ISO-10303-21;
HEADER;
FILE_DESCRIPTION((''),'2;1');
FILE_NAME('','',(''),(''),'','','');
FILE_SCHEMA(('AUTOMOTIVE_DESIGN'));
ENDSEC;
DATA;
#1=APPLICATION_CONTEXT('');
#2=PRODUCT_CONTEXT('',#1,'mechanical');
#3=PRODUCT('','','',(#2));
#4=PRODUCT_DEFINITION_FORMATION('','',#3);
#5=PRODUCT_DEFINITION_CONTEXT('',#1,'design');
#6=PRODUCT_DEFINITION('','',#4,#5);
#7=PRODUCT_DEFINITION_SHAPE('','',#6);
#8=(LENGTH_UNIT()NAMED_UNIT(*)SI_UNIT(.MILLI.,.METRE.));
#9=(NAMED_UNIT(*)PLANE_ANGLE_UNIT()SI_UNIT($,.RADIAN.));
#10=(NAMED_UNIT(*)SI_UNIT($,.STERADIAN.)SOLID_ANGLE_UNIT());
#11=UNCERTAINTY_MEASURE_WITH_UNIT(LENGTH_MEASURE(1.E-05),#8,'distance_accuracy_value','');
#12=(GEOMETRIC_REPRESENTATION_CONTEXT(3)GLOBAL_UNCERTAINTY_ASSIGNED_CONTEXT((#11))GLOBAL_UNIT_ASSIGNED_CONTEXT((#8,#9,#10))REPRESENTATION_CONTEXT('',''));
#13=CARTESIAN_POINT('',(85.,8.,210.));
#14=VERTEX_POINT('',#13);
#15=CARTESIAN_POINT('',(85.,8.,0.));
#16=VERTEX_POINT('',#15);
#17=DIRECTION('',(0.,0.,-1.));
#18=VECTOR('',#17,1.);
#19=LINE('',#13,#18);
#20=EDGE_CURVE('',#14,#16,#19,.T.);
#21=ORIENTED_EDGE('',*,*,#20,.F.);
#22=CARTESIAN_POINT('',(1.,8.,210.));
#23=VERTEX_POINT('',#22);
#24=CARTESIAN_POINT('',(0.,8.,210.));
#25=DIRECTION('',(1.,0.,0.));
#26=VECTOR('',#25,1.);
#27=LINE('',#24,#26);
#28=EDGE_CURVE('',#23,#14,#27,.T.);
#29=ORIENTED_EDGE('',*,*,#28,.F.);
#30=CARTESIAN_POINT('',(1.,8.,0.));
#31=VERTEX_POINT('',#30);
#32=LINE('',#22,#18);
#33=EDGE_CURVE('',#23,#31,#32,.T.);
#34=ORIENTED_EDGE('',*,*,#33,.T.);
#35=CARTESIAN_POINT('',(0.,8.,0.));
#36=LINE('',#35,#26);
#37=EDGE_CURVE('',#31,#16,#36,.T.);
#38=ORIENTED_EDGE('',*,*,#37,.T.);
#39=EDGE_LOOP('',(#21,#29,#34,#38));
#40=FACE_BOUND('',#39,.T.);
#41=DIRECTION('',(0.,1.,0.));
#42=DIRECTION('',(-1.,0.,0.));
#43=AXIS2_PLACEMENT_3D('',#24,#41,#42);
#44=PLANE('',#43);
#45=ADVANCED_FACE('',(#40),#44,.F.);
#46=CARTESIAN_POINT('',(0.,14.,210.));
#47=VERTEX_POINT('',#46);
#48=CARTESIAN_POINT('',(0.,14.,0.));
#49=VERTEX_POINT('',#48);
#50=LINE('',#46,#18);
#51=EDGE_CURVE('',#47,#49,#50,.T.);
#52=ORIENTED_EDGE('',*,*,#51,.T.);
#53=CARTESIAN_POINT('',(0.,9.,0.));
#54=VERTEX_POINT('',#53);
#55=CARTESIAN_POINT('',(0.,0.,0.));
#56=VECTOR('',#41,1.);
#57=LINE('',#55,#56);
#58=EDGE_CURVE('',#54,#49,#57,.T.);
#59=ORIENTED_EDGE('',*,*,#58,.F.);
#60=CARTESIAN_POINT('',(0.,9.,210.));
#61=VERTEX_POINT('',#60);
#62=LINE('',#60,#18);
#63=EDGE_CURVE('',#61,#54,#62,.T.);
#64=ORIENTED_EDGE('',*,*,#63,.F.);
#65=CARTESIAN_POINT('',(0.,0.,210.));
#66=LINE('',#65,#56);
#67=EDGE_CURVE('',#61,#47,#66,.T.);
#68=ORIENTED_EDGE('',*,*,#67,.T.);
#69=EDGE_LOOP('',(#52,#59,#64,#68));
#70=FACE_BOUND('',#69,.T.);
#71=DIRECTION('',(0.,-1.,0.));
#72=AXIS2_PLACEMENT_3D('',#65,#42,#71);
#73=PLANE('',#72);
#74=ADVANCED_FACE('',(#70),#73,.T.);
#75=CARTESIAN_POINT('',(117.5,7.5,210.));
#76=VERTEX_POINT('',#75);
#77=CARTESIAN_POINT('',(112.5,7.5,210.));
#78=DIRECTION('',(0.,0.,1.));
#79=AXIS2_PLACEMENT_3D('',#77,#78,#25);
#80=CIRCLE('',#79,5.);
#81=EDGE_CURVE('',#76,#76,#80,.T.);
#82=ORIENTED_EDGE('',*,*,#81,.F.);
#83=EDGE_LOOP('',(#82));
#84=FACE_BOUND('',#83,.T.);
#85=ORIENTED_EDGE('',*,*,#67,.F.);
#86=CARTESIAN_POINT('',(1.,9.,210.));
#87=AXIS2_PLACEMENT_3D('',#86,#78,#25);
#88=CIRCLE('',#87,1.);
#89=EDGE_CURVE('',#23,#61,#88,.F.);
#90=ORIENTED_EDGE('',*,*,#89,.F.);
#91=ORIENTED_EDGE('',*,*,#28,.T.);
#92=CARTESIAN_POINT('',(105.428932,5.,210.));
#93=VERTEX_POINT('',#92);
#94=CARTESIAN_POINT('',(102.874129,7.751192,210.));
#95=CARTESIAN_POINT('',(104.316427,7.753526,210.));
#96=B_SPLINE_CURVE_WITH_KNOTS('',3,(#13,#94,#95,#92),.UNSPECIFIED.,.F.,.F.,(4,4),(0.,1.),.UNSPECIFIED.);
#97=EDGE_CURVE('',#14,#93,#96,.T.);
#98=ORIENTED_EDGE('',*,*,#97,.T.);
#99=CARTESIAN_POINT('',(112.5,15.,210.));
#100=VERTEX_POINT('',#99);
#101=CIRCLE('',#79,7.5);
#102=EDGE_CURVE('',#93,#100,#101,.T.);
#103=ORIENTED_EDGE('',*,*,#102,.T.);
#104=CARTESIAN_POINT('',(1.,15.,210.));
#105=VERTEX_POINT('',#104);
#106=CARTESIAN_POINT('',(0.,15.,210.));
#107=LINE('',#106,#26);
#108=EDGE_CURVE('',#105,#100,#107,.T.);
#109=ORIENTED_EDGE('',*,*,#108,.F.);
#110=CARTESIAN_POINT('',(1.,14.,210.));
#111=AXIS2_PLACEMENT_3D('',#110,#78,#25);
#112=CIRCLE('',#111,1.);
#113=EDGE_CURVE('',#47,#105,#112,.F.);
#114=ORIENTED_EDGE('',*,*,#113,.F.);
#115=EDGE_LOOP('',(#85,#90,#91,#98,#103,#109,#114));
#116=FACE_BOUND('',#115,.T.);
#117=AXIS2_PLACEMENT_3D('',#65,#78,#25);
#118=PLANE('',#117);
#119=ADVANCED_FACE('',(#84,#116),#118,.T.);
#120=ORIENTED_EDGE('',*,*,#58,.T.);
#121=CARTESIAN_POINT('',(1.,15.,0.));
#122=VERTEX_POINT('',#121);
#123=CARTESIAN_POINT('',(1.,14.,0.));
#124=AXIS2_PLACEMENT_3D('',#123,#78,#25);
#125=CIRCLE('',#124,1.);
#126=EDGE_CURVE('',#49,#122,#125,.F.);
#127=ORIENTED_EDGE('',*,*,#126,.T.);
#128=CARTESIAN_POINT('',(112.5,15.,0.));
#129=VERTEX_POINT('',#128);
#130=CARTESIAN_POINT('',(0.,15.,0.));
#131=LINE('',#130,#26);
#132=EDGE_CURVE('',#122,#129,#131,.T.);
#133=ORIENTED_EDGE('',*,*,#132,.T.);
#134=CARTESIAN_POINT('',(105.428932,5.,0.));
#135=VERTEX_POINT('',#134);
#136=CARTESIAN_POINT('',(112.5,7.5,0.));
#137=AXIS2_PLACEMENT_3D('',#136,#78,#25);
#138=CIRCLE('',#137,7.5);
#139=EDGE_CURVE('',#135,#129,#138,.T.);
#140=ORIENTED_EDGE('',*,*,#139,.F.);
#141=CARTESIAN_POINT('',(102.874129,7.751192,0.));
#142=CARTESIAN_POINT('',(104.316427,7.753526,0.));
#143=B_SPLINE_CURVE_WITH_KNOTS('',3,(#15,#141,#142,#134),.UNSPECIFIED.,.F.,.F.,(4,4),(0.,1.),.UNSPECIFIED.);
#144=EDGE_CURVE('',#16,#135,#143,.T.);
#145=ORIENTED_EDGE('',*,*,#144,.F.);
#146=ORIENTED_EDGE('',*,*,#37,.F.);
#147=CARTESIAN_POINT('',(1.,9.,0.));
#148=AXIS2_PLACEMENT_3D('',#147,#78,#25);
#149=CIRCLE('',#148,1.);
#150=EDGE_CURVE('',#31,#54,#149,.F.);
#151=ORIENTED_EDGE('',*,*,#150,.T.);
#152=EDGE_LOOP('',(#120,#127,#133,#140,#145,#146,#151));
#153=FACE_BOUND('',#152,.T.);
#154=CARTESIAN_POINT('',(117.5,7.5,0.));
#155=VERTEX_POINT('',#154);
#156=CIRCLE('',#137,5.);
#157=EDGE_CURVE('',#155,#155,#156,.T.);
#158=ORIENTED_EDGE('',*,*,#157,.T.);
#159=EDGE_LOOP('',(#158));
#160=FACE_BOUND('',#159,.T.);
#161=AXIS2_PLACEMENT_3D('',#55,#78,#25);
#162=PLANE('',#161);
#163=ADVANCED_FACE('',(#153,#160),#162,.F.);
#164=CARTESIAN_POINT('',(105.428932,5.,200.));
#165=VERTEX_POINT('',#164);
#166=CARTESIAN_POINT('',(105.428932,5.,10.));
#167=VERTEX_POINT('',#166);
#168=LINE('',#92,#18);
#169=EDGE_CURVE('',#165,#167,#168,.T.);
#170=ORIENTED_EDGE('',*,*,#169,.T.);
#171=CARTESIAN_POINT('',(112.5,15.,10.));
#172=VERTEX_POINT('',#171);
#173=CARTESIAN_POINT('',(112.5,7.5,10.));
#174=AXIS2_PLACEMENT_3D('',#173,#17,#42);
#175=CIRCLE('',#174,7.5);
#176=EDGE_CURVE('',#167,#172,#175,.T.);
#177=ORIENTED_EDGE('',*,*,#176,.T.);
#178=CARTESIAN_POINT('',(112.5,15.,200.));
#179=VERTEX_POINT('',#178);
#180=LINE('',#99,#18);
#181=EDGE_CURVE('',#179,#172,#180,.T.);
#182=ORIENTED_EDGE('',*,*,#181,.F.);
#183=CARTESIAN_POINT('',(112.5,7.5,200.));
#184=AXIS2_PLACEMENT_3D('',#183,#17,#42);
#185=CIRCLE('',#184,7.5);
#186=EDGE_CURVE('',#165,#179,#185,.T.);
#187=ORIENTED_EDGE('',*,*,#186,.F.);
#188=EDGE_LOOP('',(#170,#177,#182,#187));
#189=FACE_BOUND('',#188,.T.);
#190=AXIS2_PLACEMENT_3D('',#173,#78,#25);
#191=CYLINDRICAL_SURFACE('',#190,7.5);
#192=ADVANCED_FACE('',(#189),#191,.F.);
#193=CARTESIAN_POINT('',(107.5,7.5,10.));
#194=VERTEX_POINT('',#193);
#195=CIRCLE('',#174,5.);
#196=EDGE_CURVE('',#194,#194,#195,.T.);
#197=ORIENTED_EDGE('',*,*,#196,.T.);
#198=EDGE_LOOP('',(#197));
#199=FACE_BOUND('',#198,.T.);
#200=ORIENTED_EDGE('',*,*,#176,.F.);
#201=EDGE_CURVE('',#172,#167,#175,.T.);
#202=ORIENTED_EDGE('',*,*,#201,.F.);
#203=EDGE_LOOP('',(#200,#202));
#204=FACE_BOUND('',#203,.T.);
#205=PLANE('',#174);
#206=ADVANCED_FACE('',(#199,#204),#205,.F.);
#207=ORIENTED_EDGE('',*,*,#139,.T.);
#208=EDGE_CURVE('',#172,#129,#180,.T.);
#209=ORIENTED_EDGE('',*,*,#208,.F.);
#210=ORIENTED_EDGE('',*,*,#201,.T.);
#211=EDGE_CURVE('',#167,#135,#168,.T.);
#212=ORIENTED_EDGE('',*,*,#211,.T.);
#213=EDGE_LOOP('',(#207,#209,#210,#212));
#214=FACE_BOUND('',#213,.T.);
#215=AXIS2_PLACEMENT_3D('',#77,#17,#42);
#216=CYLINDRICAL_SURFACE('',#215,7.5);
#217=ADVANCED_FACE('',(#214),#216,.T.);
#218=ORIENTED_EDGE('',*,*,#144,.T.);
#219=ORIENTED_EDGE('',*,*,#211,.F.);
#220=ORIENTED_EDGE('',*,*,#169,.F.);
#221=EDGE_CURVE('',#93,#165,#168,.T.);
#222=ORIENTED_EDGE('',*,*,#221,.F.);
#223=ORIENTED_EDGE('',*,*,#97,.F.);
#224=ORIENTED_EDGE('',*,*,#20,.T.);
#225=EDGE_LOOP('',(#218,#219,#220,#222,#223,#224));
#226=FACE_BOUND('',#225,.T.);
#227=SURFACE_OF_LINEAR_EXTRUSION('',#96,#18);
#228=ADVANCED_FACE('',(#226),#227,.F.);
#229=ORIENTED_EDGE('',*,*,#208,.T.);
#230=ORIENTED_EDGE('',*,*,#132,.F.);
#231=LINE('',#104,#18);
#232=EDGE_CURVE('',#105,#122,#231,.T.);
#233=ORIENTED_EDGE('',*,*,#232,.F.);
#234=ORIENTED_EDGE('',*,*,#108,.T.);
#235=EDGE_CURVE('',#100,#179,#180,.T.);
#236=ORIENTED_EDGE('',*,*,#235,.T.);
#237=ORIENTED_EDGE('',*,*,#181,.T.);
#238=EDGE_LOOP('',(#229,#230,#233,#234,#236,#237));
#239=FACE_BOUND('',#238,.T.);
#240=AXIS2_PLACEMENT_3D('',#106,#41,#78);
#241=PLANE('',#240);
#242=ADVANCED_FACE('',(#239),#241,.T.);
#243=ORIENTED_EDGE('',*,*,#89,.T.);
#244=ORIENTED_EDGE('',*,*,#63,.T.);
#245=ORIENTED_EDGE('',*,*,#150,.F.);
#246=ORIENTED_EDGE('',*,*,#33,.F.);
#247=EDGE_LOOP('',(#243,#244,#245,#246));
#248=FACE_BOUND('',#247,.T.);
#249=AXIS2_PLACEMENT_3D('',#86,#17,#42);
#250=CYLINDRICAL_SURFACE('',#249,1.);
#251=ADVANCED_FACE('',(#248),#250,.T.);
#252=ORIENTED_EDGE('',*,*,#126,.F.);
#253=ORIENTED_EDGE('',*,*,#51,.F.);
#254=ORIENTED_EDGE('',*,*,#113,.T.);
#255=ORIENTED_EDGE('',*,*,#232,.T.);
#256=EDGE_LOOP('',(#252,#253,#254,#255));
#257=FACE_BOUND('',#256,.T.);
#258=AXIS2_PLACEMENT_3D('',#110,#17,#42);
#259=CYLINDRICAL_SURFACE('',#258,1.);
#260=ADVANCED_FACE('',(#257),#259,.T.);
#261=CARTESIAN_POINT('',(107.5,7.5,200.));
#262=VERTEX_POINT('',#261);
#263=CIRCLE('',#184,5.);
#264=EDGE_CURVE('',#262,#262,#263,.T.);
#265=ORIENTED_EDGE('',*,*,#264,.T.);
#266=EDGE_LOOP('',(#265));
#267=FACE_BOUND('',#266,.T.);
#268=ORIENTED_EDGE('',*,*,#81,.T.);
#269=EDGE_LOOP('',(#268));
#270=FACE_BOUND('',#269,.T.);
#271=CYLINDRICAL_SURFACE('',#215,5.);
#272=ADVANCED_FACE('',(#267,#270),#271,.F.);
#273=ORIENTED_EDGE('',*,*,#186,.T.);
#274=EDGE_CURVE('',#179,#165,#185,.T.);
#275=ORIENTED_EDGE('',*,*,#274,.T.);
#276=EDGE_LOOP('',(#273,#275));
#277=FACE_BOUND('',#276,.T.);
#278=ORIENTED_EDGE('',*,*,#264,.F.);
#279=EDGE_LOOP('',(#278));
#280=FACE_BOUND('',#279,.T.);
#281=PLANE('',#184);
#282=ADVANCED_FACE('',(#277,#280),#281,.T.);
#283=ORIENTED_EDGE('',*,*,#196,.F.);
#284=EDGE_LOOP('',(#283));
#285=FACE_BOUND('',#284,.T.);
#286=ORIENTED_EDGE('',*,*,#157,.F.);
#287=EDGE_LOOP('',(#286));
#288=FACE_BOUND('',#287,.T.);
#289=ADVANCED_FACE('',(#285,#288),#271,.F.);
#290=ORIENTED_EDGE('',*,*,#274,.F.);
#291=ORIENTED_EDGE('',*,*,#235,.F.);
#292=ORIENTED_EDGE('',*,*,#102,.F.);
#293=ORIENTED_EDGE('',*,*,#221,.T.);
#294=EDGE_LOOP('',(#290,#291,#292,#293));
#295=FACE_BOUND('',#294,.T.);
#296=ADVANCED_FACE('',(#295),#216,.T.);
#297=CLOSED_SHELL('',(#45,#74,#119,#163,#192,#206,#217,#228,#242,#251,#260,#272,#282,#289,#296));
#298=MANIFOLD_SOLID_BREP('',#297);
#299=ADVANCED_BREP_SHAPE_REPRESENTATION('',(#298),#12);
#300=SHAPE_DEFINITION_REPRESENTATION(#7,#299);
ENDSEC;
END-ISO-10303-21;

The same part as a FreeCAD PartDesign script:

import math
import FreeCAD as App
import Part
import Sketcher
from FreeCAD import Vector

doc = App.newDocument("Part")
body = doc.addObject("PartDesign::Body", "Body")

# Sketch on XY plane
sketch1 = doc.addObject("Sketcher::SketchObject", "Sketch")
body.addObject(sketch1)
sketch1.AttachmentSupport = (doc.XY_Plane, [""])
sketch1.MapMode = "FlatFace"
sketch1.addGeometry([
    Part.ArcOfCircle(Part.Circle(Vector(1, 9, 0), Vector(0, 0, 1), 1), math.radians(-180), math.radians(-90)),  # 0
    Part.LineSegment(Vector(1, 8, 0), Vector(85, 8, 0)),  # 1
    Part.BSplineCurve([Vector(85, 8, 0), Vector(102.874129, 7.751192, 0), Vector(104.316427, 7.753526, 0), Vector(105.428932, 5, 0)], [4, 4], [0, 1], False, 3, [1, 1, 1, 1], False),  # 2
    Part.ArcOfCircle(Part.Circle(Vector(112.5, 7.5, 0), Vector(0, 0, 1), 7.5), math.radians(-160.528779), math.radians(90)),  # 3
    Part.LineSegment(Vector(112.5, 15, 0), Vector(1, 15, 0)),  # 4
    Part.ArcOfCircle(Part.Circle(Vector(1, 14, 0), Vector(0, 0, 1), 1), math.radians(90), math.radians(180)),  # 5
    Part.LineSegment(Vector(0, 14, 0), Vector(0, 9, 0)),  # 6
    Part.Circle(Vector(112.5, 7.5, 0), Vector(0, 0, 1), 5),  # 7
], False)
sketch1.addConstraint([
    Sketcher.Constraint("Block", 2),
    Sketcher.Constraint("Coincident", 0, 2, 1, 1),
    Sketcher.Constraint("Coincident", 1, 2, 2, 1),
    Sketcher.Constraint("Coincident", 2, 2, 3, 1),
    Sketcher.Constraint("Coincident", 3, 2, 4, 1),
    Sketcher.Constraint("Coincident", 4, 2, 5, 1),
    Sketcher.Constraint("Coincident", 5, 2, 6, 1),
    Sketcher.Constraint("Coincident", 6, 2, 0, 1),
    Sketcher.Constraint("Horizontal", 1),
    Sketcher.Constraint("Horizontal", 4),
    Sketcher.Constraint("Vertical", 6),
    Sketcher.Constraint("Coincident", 7, 3, 3, 3),
    Sketcher.Constraint("PointOnObject", 5, 2, -2),
    Sketcher.Constraint("Diameter", 7, 10.0),
    Sketcher.Constraint("Radius", 0, 1.0),
    Sketcher.Constraint("Radius", 5, 1.0),
    Sketcher.Constraint("Radius", 3, 7.5),
    Sketcher.Constraint("DistanceX", 1, 1, 1, 2, 84.0),
    Sketcher.Constraint("DistanceY", 6, 2, 6, 1, 5.0),
    Sketcher.Constraint("DistanceX", 4, 2, 4, 1, 111.5),
    Sketcher.Constraint("DistanceY", -1, 1, 5, 3, 14.0),
    Sketcher.Constraint("DistanceX", -1, 1, 4, 2, 1.0),
    Sketcher.Constraint("DistanceY", -1, 1, 5, 2, 14.0),
])
pad1 = doc.addObject("PartDesign::Pad", "Pad")
body.addObject(pad1)
pad1.Profile = sketch1
pad1.Length = 210

# Sketch on XY plane
sketch2 = doc.addObject("Sketcher::SketchObject", "Sketch001")
body.addObject(sketch2)
sketch2.AttachmentSupport = (doc.XY_Plane, [""])
sketch2.MapMode = "FlatFace"
sketch2.AttachmentOffset = App.Placement(Vector(0, 0, 105), App.Rotation())
sketch2.addGeometry(Part.Circle(Vector(112.5, 7.5, 0), Vector(0, 0, 1), 7.5), False)
sketch2.addConstraint([
    Sketcher.Constraint("Diameter", 0, 15.0),
    Sketcher.Constraint("DistanceX", -1, 1, 0, 3, 112.5),
    Sketcher.Constraint("DistanceY", -1, 1, 0, 3, 7.5),
])
pocket1 = doc.addObject("PartDesign::Pocket", "Pocket")
body.addObject(pocket1)
pocket1.Profile = sketch2
pocket1.Type = "TwoLengths"
pocket1.Length = 95
pocket1.Length2 = 95

doc.recompute()
